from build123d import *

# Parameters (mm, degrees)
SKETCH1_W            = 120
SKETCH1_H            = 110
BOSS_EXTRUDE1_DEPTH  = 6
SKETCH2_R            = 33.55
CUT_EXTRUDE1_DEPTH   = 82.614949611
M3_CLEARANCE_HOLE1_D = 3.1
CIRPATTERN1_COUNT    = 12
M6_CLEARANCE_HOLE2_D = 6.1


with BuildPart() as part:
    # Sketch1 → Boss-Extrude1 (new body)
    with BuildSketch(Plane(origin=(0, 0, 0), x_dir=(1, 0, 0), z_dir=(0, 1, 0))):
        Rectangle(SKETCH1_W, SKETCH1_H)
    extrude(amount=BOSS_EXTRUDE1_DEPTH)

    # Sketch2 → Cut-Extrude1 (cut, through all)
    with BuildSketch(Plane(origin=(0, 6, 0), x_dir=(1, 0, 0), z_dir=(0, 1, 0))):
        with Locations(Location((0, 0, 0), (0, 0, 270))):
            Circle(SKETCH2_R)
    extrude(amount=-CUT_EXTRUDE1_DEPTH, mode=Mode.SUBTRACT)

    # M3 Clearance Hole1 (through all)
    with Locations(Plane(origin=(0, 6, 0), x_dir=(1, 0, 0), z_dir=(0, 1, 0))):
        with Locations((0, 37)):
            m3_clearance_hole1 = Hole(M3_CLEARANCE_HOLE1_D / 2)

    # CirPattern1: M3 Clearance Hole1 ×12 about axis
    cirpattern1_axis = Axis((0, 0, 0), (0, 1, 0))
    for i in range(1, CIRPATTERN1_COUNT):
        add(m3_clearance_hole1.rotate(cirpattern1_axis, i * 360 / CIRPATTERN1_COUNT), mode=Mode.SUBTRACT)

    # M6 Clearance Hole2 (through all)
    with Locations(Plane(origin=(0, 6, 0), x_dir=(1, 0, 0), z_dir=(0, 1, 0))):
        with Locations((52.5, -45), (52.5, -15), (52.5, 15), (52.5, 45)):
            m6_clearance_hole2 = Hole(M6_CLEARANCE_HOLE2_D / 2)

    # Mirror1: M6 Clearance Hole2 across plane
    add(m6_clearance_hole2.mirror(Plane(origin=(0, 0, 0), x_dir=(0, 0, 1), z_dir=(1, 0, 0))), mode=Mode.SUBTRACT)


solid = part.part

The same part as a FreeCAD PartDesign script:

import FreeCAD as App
import Part
import Sketcher
from FreeCAD import Vector
Q = App.Units.Quantity

doc = App.newDocument("Part")
params = doc.addObject("Spreadsheet::Sheet", "Params")
for row, (alias, value) in enumerate([
    ("sketch1_width", "120 mm"),
    ("sketch1_height", "110 mm"),
    ("pad1_length", "6 mm"),
    ("sketch2_diameter", "67.1 mm"),
    ("sketch3_diameter", "3.1 mm"),
    ("hole_diameter", "3.1 mm"),
    ("sketch4_diameter", "6.1 mm"),
    ("hole2_diameter", "6.1 mm"),
], start=1):
    params.set(f"A{row}", alias)
    params.set(f"B{row}", "=" + value)
    params.setAlias(f"B{row}", alias)

body = doc.addObject("PartDesign::Body", "Body")

sketch1 = body.newObject("Sketcher::SketchObject", "Sketch")
sketch1.AttachmentSupport = (doc.getObject("XZ_Plane"), [""])
sketch1.MapMode = "FlatFace"
sketch1.addGeometry([
    Part.LineSegment(Vector(-60, -55, 0), Vector(-60, 55, 0)),
    Part.LineSegment(Vector(-60, 55, 0), Vector(60, 55, 0)),
    Part.LineSegment(Vector(60, 55, 0), Vector(60, -55, 0)),
    Part.LineSegment(Vector(60, -55, 0), Vector(-60, -55, 0)),
], False)
sketch1.addConstraint([
    Sketcher.Constraint("Coincident", 0, 2, 1, 1),
    Sketcher.Constraint("Coincident", 1, 2, 2, 1),
    Sketcher.Constraint("Coincident", 2, 2, 3, 1),
    Sketcher.Constraint("Coincident", 3, 2, 0, 1),
    Sketcher.Constraint("Vertical", 0),
    Sketcher.Constraint("Horizontal", 1),
    Sketcher.Constraint("Vertical", 2),
    Sketcher.Constraint("Horizontal", 3),
    Sketcher.Constraint("Symmetric", 0, 2, 2, 2, -1, 1),
    Sketcher.Constraint("DistanceX", 1, 1, 1, 2, Q("120 mm")),
    Sketcher.Constraint("DistanceY", 0, 1, 0, 2, Q("110 mm")),
])
sketch1.setExpression("Constraints[9]", "Params.sketch1_width")
sketch1.setExpression("Constraints[10]", "Params.sketch1_height")
pad1 = body.newObject("PartDesign::Pad", "Pad")
pad1.Profile = sketch1
pad1.setExpression("Length", "Params.pad1_length")
pad1.Reversed = True

sketch2 = body.newObject("Sketcher::SketchObject", "Sketch001")
sketch2.AttachmentSupport = (doc.getObject("XZ_Plane"), [""])
sketch2.MapMode = "FlatFace"
sketch2.AttachmentOffset = App.Placement(Vector(0, 0, -6), App.Rotation())
sketch2.addGeometry(Part.Circle(Vector(0, 0, 0), Vector(0, 0, 1), 34), False)
sketch2.addConstraint([
    Sketcher.Constraint("Coincident", 0, 3, -1, 1),
    Sketcher.Constraint("Diameter", 0, Q("67.1 mm")),
])
sketch2.setExpression("Constraints[1]", "Params.sketch2_diameter")
pocket1 = body.newObject("PartDesign::Pocket", "Pocket")
pocket1.Profile = sketch2
pocket1.Type = "ThroughAll"
pocket1.Reversed = True

sketch3 = body.newObject("Sketcher::SketchObject", "Sketch002")
sketch3.AttachmentSupport = (doc.getObject("XZ_Plane"), [""])
sketch3.MapMode = "FlatFace"
sketch3.AttachmentOffset = App.Placement(Vector(0, 0, -6), App.Rotation())
sketch3.addGeometry(Part.Circle(Vector(0, -37, 0), Vector(0, 0, 1), 1.6), False)
sketch3.addConstraint([
    Sketcher.Constraint("PointOnObject", 0, 3, -2),
    Sketcher.Constraint("Diameter", 0, Q("3.1 mm")),
    Sketcher.Constraint("DistanceY", 0, 3, -1, 1, Q("37 mm")),
])
sketch3.setExpression("Constraints[1]", "Params.sketch3_diameter")
doc.recompute()
hole = body.newObject("PartDesign::Hole", "Hole")
hole.Profile = sketch3
hole.ThreadType = "None"
hole.setExpression("Diameter", "Params.hole_diameter")
hole.DepthType = "ThroughAll"
hole.Reversed = True
doc.recompute()

polarpattern = body.newObject("PartDesign::PolarPattern", "PolarPattern")
polarpattern.Originals = [hole]
polarpattern.Axis = (doc.getObject("Y_Axis"), [""])
polarpattern.Angle = 360
polarpattern.Occurrences = 12
body.Tip = polarpattern

sketch4 = body.newObject("Sketcher::SketchObject", "Sketch003")
sketch4.AttachmentSupport = (doc.getObject("XZ_Plane"), [""])
sketch4.MapMode = "FlatFace"
sketch4.AttachmentOffset = App.Placement(Vector(0, 0, -6), App.Rotation())
sketch4.addGeometry([
    Part.Circle(Vector(52.5, 45, 0), Vector(0, 0, 1), 3),
    Part.Circle(Vector(52.5, 15, 0), Vector(0, 0, 1), 3),
    Part.Circle(Vector(52.5, -15, 0), Vector(0, 0, 1), 3),
    Part.Circle(Vector(52.5, -45, 0), Vector(0, 0, 1), 3),
], False)
sketch4.addConstraint([
    Sketcher.Constraint("Equal", 0, 1),
    Sketcher.Constraint("Equal", 1, 2),
    Sketcher.Constraint("Equal", 2, 3),
    Sketcher.Constraint("Symmetric", 1, 3, 2, 3, -1),
    Sketcher.Constraint("Symmetric", 0, 3, 3, 3, -1),
    Sketcher.Constraint("Vertical", 0, 3, 1, 3),
    Sketcher.Constraint("Diameter", 0, Q("6.1 mm")),
    Sketcher.Constraint("DistanceY", -1, 1, 0, 3, Q("45 mm")),
    Sketcher.Constraint("DistanceY", -1, 1, 1, 3, Q("15 mm")),
    Sketcher.Constraint("DistanceX", -1, 1, 0, 3, Q("52.5 mm")),
])
sketch4.setExpression("Constraints[6]", "Params.sketch4_diameter")
doc.recompute()
hole2 = body.newObject("PartDesign::Hole", "Hole001")
hole2.Profile = sketch4
hole2.ThreadType = "None"
hole2.setExpression("Diameter", "Params.hole2_diameter")
hole2.DepthType = "ThroughAll"
hole2.Reversed = True
doc.recompute()

mirrored = body.newObject("PartDesign::Mirrored", "Mirrored")
mirrored.Originals = [hole2]
mirrored.MirrorPlane = (doc.getObject("YZ_Plane"), [""])
body.Tip = mirrored

doc.recompute()
